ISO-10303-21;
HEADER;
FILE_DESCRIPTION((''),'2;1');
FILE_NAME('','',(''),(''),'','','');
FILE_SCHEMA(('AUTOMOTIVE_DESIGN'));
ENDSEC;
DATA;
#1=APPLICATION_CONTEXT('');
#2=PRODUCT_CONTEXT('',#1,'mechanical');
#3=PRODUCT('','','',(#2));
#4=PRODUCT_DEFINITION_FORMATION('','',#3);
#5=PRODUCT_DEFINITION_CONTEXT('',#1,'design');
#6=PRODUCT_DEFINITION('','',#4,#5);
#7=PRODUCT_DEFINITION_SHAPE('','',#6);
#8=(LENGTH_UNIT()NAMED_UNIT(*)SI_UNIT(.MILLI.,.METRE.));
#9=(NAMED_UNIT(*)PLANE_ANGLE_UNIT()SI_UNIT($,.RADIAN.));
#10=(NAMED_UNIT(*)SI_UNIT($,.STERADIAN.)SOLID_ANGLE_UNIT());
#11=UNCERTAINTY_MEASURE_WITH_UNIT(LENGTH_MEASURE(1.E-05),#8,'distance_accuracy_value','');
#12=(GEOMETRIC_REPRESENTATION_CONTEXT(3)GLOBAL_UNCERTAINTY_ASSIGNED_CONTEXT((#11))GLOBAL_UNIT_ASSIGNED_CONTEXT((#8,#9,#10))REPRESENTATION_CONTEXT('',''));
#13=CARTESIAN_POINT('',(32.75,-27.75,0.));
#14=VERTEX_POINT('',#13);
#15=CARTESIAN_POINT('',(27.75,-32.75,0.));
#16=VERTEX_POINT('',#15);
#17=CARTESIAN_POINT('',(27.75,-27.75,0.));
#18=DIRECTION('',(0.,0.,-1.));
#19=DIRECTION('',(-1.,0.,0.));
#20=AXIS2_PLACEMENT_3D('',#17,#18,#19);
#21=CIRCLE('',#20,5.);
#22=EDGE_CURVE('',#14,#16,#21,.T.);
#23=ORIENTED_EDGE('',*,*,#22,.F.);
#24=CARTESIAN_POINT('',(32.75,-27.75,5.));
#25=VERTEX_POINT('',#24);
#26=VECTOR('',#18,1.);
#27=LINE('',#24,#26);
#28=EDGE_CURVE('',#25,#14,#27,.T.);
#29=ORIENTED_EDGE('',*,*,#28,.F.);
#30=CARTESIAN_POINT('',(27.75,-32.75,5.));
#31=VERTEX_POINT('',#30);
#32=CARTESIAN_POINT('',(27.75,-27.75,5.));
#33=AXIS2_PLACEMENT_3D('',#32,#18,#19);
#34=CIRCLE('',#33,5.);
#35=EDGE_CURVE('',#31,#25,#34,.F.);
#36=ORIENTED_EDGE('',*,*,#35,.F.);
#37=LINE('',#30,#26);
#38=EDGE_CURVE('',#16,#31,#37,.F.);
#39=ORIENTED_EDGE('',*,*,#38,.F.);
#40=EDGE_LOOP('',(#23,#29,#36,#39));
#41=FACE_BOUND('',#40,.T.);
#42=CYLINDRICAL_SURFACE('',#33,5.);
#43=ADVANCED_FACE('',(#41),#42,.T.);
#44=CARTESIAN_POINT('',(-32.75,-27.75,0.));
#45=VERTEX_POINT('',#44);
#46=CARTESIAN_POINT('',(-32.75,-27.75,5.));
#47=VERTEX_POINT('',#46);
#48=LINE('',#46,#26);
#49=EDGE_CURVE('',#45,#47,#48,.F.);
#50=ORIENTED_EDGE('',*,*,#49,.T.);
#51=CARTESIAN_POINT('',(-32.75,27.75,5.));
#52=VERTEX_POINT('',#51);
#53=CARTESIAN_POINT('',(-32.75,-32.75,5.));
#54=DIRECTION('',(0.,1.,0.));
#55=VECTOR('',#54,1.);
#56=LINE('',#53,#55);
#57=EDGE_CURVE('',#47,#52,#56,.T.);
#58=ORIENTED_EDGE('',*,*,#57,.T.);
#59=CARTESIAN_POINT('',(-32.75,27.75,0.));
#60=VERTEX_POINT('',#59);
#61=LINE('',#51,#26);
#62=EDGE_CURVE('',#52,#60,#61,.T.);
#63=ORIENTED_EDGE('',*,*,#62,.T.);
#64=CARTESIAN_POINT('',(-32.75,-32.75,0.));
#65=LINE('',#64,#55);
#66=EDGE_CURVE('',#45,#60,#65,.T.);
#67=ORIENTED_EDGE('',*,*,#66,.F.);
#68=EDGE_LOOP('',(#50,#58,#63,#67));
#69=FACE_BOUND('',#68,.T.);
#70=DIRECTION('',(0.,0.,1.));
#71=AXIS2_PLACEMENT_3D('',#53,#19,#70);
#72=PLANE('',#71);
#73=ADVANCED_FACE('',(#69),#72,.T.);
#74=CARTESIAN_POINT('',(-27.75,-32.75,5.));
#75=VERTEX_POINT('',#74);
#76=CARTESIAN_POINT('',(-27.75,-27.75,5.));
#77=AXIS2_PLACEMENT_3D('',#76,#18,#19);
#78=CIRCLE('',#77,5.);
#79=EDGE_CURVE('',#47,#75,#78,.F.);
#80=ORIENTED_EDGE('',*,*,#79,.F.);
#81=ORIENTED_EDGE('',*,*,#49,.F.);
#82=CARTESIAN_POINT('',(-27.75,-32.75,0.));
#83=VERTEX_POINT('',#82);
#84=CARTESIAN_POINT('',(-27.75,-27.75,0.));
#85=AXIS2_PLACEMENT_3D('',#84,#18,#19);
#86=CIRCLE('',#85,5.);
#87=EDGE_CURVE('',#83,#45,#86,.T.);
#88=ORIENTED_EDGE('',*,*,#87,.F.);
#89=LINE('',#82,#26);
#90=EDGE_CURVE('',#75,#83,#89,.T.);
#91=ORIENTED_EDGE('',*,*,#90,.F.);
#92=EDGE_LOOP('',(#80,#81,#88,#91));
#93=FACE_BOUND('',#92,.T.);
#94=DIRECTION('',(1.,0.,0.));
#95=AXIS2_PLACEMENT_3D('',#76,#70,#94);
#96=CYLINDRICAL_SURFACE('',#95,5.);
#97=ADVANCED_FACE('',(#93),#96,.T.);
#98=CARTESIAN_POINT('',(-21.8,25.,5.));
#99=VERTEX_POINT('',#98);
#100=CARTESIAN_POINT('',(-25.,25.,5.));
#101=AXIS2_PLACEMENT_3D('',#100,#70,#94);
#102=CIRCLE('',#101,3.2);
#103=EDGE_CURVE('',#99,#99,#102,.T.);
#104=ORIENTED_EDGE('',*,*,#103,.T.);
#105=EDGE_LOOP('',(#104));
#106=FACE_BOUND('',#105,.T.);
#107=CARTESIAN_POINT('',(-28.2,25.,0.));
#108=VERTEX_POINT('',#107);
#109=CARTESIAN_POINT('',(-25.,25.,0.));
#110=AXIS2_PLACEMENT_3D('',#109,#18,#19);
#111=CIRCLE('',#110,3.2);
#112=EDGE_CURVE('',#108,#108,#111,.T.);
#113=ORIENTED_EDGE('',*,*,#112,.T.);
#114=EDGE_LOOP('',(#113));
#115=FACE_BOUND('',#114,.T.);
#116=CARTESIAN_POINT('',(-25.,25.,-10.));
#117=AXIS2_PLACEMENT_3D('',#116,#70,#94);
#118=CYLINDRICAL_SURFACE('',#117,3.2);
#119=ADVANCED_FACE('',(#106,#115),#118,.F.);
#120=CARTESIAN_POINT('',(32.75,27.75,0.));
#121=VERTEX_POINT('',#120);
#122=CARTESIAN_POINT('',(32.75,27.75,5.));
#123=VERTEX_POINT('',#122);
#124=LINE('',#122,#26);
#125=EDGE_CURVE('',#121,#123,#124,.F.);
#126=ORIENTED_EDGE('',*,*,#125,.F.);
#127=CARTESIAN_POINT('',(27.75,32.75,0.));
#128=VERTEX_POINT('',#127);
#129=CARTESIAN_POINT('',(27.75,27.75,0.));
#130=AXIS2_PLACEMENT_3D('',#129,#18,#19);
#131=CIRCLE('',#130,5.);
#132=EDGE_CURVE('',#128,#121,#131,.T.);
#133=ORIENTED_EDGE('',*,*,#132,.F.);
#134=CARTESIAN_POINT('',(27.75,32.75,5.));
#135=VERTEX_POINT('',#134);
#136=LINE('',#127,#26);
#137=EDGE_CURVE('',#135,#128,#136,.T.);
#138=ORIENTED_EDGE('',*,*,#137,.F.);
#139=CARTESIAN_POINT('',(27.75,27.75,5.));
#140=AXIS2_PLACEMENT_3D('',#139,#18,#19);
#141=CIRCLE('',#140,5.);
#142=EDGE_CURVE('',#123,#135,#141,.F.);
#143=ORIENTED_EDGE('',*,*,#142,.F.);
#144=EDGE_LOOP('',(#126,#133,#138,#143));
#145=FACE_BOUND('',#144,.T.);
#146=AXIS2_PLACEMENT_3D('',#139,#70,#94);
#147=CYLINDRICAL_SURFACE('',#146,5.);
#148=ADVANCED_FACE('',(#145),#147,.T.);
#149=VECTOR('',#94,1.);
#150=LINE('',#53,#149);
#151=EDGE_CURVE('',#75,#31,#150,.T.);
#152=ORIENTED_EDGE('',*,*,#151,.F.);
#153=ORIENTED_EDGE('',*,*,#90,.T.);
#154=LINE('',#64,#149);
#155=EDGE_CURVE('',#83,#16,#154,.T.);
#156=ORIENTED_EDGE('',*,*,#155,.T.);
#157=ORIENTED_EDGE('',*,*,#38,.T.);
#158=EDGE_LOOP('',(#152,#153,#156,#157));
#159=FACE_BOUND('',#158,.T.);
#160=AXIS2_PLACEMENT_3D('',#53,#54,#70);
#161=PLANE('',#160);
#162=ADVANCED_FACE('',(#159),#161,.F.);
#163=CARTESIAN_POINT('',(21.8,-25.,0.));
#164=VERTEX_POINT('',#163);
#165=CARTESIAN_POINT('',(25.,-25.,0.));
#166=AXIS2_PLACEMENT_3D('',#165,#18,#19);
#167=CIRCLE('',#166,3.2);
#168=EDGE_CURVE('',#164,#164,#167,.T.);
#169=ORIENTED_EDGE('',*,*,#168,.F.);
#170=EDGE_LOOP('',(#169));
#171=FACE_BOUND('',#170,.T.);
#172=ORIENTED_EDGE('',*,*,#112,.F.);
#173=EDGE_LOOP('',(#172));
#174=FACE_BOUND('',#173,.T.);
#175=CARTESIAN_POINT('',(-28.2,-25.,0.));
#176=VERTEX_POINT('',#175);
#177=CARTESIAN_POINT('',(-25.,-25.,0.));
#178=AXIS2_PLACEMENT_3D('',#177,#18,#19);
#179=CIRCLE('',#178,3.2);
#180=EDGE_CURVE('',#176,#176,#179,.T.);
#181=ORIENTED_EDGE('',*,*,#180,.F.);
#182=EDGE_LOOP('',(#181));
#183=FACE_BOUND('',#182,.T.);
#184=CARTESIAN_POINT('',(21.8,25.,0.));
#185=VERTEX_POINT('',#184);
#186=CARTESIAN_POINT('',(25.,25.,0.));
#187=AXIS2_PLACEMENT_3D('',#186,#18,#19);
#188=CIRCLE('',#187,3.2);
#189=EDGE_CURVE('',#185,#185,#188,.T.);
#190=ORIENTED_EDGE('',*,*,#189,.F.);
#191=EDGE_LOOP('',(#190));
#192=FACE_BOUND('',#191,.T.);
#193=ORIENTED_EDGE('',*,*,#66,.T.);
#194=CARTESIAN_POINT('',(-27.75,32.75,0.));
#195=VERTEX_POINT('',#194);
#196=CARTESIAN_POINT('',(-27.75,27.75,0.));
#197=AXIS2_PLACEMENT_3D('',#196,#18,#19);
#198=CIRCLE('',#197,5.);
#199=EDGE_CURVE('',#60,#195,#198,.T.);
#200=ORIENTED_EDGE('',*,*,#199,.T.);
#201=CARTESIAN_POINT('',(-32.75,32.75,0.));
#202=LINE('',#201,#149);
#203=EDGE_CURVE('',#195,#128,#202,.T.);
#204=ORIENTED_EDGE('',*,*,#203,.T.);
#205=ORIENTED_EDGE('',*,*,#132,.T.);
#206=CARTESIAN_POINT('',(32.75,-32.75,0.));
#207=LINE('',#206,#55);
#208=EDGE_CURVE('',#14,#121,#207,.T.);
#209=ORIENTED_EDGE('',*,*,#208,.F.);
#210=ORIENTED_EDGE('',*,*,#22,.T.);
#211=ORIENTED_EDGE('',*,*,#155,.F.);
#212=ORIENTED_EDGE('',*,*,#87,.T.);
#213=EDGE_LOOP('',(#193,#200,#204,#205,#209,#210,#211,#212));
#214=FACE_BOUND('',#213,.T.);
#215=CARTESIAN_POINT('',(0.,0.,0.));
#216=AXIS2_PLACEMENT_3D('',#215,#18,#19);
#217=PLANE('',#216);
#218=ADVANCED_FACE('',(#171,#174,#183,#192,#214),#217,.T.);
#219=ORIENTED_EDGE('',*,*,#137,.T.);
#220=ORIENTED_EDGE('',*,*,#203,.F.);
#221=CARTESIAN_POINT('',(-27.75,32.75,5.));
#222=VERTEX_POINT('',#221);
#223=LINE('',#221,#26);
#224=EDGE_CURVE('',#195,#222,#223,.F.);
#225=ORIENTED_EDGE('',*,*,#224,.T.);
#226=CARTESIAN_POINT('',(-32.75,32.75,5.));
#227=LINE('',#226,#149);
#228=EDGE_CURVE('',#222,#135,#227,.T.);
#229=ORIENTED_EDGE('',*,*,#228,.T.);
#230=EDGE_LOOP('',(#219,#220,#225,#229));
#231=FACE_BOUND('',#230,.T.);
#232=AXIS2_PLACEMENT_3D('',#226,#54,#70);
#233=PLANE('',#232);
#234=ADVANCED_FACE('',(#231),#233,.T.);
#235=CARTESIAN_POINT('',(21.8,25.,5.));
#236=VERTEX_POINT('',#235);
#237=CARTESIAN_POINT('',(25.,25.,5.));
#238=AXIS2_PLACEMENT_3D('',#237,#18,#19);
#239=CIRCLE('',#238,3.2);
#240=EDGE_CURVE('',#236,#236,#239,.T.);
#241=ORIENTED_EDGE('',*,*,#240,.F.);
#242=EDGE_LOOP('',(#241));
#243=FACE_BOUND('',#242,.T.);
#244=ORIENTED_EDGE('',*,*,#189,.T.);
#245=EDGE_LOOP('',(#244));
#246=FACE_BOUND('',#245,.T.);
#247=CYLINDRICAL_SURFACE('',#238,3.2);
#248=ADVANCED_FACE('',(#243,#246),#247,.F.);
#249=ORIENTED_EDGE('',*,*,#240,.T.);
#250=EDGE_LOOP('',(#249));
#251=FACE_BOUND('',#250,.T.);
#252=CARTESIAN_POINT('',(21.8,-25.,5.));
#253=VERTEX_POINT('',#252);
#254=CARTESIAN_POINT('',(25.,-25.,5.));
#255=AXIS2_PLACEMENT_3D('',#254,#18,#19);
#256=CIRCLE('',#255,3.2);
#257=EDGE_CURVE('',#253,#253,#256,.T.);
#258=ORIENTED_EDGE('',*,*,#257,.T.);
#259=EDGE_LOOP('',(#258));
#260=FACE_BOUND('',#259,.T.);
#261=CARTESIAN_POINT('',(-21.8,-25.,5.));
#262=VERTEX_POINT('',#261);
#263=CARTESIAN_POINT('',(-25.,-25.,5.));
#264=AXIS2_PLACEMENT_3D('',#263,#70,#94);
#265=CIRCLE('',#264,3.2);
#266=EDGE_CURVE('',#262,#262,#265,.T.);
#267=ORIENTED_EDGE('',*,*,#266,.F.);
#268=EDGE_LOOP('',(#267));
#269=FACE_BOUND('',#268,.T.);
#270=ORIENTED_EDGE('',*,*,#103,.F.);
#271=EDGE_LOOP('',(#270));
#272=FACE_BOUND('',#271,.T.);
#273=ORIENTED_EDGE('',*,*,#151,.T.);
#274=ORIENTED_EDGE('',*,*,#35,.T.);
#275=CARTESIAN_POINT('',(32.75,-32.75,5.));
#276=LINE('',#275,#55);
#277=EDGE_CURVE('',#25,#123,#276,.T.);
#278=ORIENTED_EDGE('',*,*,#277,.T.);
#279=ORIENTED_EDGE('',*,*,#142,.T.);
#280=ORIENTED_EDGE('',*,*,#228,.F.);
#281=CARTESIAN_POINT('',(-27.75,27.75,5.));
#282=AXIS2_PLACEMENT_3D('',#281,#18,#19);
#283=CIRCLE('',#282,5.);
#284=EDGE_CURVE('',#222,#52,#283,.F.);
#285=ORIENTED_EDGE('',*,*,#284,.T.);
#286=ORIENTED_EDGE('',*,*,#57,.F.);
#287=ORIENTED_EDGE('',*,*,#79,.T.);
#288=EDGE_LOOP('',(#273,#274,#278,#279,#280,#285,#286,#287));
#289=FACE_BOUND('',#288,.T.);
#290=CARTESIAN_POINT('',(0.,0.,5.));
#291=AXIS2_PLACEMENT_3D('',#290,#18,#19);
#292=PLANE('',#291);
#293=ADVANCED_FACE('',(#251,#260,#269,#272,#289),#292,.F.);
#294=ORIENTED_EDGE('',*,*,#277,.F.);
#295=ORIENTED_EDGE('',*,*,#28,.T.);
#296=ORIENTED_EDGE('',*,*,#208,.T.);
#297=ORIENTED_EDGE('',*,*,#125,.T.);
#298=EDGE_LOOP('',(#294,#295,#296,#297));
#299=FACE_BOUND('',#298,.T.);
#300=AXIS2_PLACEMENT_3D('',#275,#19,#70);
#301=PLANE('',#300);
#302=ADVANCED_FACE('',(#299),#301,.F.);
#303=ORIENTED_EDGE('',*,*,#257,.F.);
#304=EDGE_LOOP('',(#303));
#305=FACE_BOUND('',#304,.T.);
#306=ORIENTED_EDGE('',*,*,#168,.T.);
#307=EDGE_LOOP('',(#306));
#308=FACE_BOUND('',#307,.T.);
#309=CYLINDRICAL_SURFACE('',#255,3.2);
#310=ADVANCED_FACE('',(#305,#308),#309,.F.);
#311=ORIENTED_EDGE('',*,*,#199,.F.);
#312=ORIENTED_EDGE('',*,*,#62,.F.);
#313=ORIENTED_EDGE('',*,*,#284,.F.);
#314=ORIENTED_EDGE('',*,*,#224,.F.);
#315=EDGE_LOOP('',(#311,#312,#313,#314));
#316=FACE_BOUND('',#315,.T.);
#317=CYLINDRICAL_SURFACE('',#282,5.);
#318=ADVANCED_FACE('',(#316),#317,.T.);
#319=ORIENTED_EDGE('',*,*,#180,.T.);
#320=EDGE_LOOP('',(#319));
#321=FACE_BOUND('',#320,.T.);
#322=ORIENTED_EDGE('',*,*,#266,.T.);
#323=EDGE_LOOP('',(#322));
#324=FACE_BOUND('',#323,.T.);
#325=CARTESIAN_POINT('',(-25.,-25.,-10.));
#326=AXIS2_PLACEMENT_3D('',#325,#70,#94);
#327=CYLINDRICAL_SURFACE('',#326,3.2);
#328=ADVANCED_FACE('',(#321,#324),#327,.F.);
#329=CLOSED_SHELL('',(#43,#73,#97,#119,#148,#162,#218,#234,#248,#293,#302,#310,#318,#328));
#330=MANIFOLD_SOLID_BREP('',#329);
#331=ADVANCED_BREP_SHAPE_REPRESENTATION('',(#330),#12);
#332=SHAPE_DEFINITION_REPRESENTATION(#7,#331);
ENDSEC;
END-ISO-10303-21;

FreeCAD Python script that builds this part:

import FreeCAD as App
import Part
import Sketcher


def edges_at(feature, points):
    """Names of the edges that pass closest to the given points."""
    edges = feature.Shape.Edges
    near = lambda p: min(range(len(edges)), key=lambda i: edges[i].distToShape(Part.Vertex(*p))[0])
    return sorted({f"Edge{near(p) + 1}" for p in points})

doc = App.newDocument("Part")
body = doc.addObject("PartDesign::Body", "Body")

# Sketch on XY plane
sketch1 = body.newObject("Sketcher::SketchObject", "Sketch")
sketch1.AttachmentSupport = (doc.getObject("XY_Plane"), [""])
sketch1.MapMode = "FlatFace"
sketch1.addGeometry([
    Part.LineSegment(App.Vector(-33, 33, 0), App.Vector(-33, -33, 0)),
    Part.LineSegment(App.Vector(-33, -33, 0), App.Vector(33, -33, 0)),
    Part.LineSegment(App.Vector(33, -33, 0), App.Vector(33, 33, 0)),
    Part.LineSegment(App.Vector(33, 33, 0), App.Vector(-33, 33, 0)),
], False)
sketch1.addConstraint([
    Sketcher.Constraint("Coincident", 0, 2, 1, 1),
    Sketcher.Constraint("Coincident", 1, 2, 2, 1),
    Sketcher.Constraint("Coincident", 2, 2, 3, 1),
    Sketcher.Constraint("Coincident", 3, 2, 0, 1),
    Sketcher.Constraint("Vertical", 0),
    Sketcher.Constraint("Horizontal", 1),
    Sketcher.Constraint("Vertical", 2),
    Sketcher.Constraint("Horizontal", 3),
    Sketcher.Constraint("Symmetric", 0, 2, 2, 2, -1, 1),
    Sketcher.Constraint("Equal", 3, 0),
    Sketcher.Constraint("DistanceX", 1, 1, 1, 2, 65.5),
])
pad1 = body.newObject("PartDesign::Pad", "Pad")
pad1.Profile = sketch1
pad1.Length = 5
doc.recompute()

fillet = body.newObject("PartDesign::Fillet", "Fillet")
fillet.Base = (pad1, edges_at(pad1, [
    (-32.75, -32.75, 2.5),
    (32.75, -32.75, 2.5),
    (32.75, 32.75, 2.5),
    (-32.75, 32.75, 2.5),
]))
fillet.Radius = 5

# Sketch on XY plane
sketch2 = body.newObject("Sketcher::SketchObject", "Sketch001")
sketch2.AttachmentSupport = (doc.getObject("XY_Plane"), [""])
sketch2.MapMode = "FlatFace"
sketch2.addGeometry([
    Part.Circle(App.Vector(25, -25, 0), App.Vector(0, 0, 1), 3.2),
    Part.Circle(App.Vector(25, 25, 0), App.Vector(0, 0, 1), 3.2),
], False)
sketch2.addConstraint([
    Sketcher.Constraint("Equal", 0, 1),
    Sketcher.Constraint("Symmetric", 0, 3, 1, 3, -1),
    Sketcher.Constraint("Diameter", 0, 6.4),
    Sketcher.Constraint("DistanceX", -1, 1, 0, 3, 25.0),
    Sketcher.Constraint("DistanceY", 0, 3, -1, 1, 25.0),
])
pocket1 = body.newObject("PartDesign::Pocket", "Pocket")
pocket1.Profile = sketch2
pocket1.Length = 5
pocket1.Reversed = True

# Sketch on XY plane
sketch3 = body.newObject("Sketcher::SketchObject", "Sketch002")
sketch3.AttachmentSupport = (doc.getObject("XY_Plane"), [""])
sketch3.MapMode = "FlatFace"
sketch3.AttachmentOffset = App.Placement(App.Vector(0, 0, -10), App.Rotation())
sketch3.addGeometry([
    Part.Circle(App.Vector(25, -25, 0), App.Vector(0, 0, 1), 3.2),  # 0
    Part.Circle(App.Vector(25, 25, 0), App.Vector(0, 0, 1), 3.2),  # 1
    Part.Circle(App.Vector(25, 0, 0), App.Vector(0, 0, 1), 3.2),  # 2
    Part.Circle(App.Vector(0, -25, 0), App.Vector(0, 0, 1), 3.2),  # 3
    Part.Circle(App.Vector(0, 25, 0), App.Vector(0, 0, 1), 3.2),  # 4
    Part.Circle(App.Vector(0, 0, 0), App.Vector(0, 0, 1), 3.2),  # 5
    Part.Circle(App.Vector(-25, -25, 0), App.Vector(0, 0, 1), 3.2),  # 6
    Part.Circle(App.Vector(-25, 25, 0), App.Vector(0, 0, 1), 3.2),  # 7
    Part.Circle(App.Vector(-25, 0, 0), App.Vector(0, 0, 1), 3.2),  # 8
], False)
sketch3.addConstraint([
    Sketcher.Constraint("Coincident", 5, 3, -1, 1),
    Sketcher.Constraint("Equal", 0, 1),
    Sketcher.Constraint("Equal", 1, 2),
    Sketcher.Constraint("Equal", 2, 3),
    Sketcher.Constraint("Equal", 3, 4),
    Sketcher.Constraint("Equal", 4, 5),
    Sketcher.Constraint("Equal", 5, 6),
    Sketcher.Constraint("Equal", 6, 7),
    Sketcher.Constraint("Equal", 7, 8),
    Sketcher.Constraint("Symmetric", 3, 3, 4, 3, -1, 1),
    Sketcher.Constraint("Symmetric", 1, 3, 6, 3, -1, 1),
    Sketcher.Constraint("Symmetric", 0, 3, 7, 3, -1, 1),
    Sketcher.Constraint("Symmetric", 2, 3, 8, 3, -1, 1),
    Sketcher.Constraint("Symmetric", 0, 3, 6, 3, -2),
    Sketcher.Constraint("PointOnObject", 2, 3, -1),
    Sketcher.Constraint("PointOnObject", 3, 3, -2),
    Sketcher.Constraint("Horizontal", 0, 3, 3, 3),
    Sketcher.Constraint("Vertical", 1, 3, 2, 3),
    Sketcher.Constraint("Diameter", 0, 6.4),
    Sketcher.Constraint("DistanceX", -1, 1, 0, 3, 25.0),
    Sketcher.Constraint("DistanceY", 0, 3, -1, 1, 25.0),
])
pocket2 = body.newObject("PartDesign::Pocket", "Pocket001")
pocket2.Profile = sketch3
pocket2.Length = 15
pocket2.Reversed = True

# Sketch on XY plane
sketch4 = body.newObject("Sketcher::SketchObject", "Sketch003")
sketch4.AttachmentSupport = (doc.getObject("XY_Plane"), [""])
sketch4.MapMode = "FlatFace"
sketch4.addGeometry([
    Part.Circle(App.Vector(25, 0, 0), App.Vector(0, 0, 1), 3.2),  # 0
    Part.Circle(App.Vector(0, 0, 0), App.Vector(0, 0, 1), 3.2),  # 1
    Part.Circle(App.Vector(0, -25, 0), App.Vector(0, 0, 1), 3.2),  # 2
    Part.Circle(App.Vector(0, 25, 0), App.Vector(0, 0, 1), 3.2),  # 3
    Part.Circle(App.Vector(-25, 0, 0), App.Vector(0, 0, 1), 3.2),  # 4
], False)
sketch4.addConstraint([
    Sketcher.Constraint("Coincident", 1, 3, -1, 1),
    Sketcher.Constraint("Equal", 0, 1),
    Sketcher.Constraint("Equal", 1, 2),
    Sketcher.Constraint("Equal", 2, 3),
    Sketcher.Constraint("Equal", 3, 4),
    Sketcher.Constraint("Symmetric", 2, 3, 3, 3, -1, 1),
    Sketcher.Constraint("Symmetric", 0, 3, 4, 3, -1, 1),
    Sketcher.Constraint("PointOnObject", 0, 3, -1),
    Sketcher.Constraint("PointOnObject", 2, 3, -2),
    Sketcher.Constraint("Diameter", 0, 6.4),
    Sketcher.Constraint("DistanceX", -1, 1, 0, 3, 25.0),
    Sketcher.Constraint("DistanceY", 2, 3, -1, 1, 25.0),
])
pad2 = body.newObject("PartDesign::Pad", "Pad001")
pad2.Profile = sketch4
pad2.Length = 5

doc.recompute()
